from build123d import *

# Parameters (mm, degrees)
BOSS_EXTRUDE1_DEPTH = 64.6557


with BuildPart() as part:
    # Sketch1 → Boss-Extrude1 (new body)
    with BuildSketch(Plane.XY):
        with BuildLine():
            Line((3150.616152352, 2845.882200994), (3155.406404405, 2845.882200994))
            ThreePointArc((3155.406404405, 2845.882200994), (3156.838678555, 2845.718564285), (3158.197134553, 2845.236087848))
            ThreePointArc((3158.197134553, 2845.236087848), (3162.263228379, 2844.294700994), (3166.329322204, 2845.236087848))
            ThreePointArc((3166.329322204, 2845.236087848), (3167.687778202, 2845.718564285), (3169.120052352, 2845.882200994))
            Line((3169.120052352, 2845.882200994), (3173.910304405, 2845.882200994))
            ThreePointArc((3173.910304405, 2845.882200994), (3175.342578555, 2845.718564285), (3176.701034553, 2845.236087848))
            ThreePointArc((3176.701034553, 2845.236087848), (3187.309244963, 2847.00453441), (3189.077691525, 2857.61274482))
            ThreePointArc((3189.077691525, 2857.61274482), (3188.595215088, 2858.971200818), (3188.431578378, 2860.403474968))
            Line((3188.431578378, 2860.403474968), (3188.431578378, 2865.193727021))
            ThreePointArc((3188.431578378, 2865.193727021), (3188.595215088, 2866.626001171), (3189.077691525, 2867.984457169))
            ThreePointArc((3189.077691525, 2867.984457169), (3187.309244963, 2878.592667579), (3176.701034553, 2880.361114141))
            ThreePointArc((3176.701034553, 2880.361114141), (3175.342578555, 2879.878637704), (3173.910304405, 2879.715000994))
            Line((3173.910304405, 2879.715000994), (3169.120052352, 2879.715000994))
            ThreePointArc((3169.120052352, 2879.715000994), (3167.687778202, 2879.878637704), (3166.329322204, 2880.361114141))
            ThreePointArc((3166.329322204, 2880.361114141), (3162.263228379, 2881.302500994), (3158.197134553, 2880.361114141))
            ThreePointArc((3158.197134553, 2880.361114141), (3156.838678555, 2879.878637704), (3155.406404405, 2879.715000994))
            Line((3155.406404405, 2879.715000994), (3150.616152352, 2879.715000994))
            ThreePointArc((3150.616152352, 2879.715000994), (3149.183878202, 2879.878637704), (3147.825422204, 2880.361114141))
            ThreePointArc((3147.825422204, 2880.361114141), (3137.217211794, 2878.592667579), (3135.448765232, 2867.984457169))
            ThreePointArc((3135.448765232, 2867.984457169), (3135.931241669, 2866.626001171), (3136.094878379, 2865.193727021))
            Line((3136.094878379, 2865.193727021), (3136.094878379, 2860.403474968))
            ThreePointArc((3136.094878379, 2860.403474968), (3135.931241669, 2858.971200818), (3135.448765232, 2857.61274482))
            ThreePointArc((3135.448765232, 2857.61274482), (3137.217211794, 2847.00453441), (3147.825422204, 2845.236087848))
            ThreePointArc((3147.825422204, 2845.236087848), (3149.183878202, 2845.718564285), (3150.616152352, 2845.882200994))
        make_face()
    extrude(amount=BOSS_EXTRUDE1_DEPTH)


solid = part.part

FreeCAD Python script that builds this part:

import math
import FreeCAD as App
import Part
import Sketcher
Q = App.Units.Quantity

doc = App.newDocument("Part")
body = doc.addObject("PartDesign::Body", "Body")

# Sketch on XY plane
sketch1 = body.newObject("Sketcher::SketchObject", "Sketch")
sketch1.AttachmentSupport = (doc.getObject("XY_Plane"), [""])
sketch1.MapMode = "FlatFace"
sketch1.addGeometry(Part.LineSegment(App.Vector(3150.6, 2845.9, 0), App.Vector(3155.4, 2845.9, 0)), False)
sketch1.addGeometry(Part.ArcOfCircle(Part.Circle(App.Vector(3155.4, 2839.5, 0), App.Vector(0, 0, 1), 6.3), math.radians(64), math.radians(90)), False)
sketch1.addGeometry(Part.ArcOfCircle(Part.Circle(App.Vector(3162.3, 2853.5, 0), App.Vector(0, 0, 1), 9.3), math.radians(-116), math.radians(-64)), False)
sketch1.addGeometry(Part.ArcOfCircle(Part.Circle(App.Vector(3169.1, 2839.5, 0), App.Vector(0, 0, 1), 6.3), math.radians(90), math.radians(116)), False)
sketch1.addGeometry(Part.LineSegment(App.Vector(3169.1, 2845.9, 0), App.Vector(3173.9, 2845.9, 0)), False)
sketch1.addGeometry(Part.ArcOfCircle(Part.Circle(App.Vector(3173.9, 2839.5, 0), App.Vector(0, 0, 1), 6.3), math.radians(64), math.radians(90)), False)
sketch1.addGeometry(Part.ArcOfCircle(Part.Circle(App.Vector(3180.8, 2853.5, 0), App.Vector(0, 0, 1), 9.3), math.radians(-116), math.radians(26)), False)
sketch1.addGeometry(Part.ArcOfCircle(Part.Circle(App.Vector(3194.8, 2860.4, 0), App.Vector(0, 0, 1), 6.3), math.radians(-180), math.radians(-154)), False)
sketch1.addGeometry(Part.LineSegment(App.Vector(3188.4, 2860.4, 0), App.Vector(3188.4, 2865.2, 0)), False)
sketch1.addGeometry(Part.ArcOfCircle(Part.Circle(App.Vector(3194.8, 2865.2, 0), App.Vector(0, 0, 1), 6.3), math.radians(154), math.radians(180)), False)
sketch1.addGeometry(Part.ArcOfCircle(Part.Circle(App.Vector(3180.8, 2872.1, 0), App.Vector(0, 0, 1), 9.3), math.radians(-26), math.radians(116)), False)
sketch1.addGeometry(Part.ArcOfCircle(Part.Circle(App.Vector(3173.9, 2886.1, 0), App.Vector(0, 0, 1), 6.3), math.radians(-90), math.radians(-64)), False)
sketch1.addGeometry(Part.LineSegment(App.Vector(3173.9, 2879.7, 0), App.Vector(3169.1, 2879.7, 0)), False)
sketch1.addGeometry(Part.ArcOfCircle(Part.Circle(App.Vector(3169.1, 2886.1, 0), App.Vector(0, 0, 1), 6.3), math.radians(-116), math.radians(-90)), False)
sketch1.addGeometry(Part.ArcOfCircle(Part.Circle(App.Vector(3162.3, 2872.1, 0), App.Vector(0, 0, 1), 9.3), math.radians(64), math.radians(116)), False)
sketch1.addGeometry(Part.ArcOfCircle(Part.Circle(App.Vector(3155.4, 2886.1, 0), App.Vector(0, 0, 1), 6.3), math.radians(-90), math.radians(-64)), False)
sketch1.addGeometry(Part.LineSegment(App.Vector(3155.4, 2879.7, 0), App.Vector(3150.6, 2879.7, 0)), False)
sketch1.addGeometry(Part.ArcOfCircle(Part.Circle(App.Vector(3150.6, 2886.1, 0), App.Vector(0, 0, 1), 6.3), math.radians(-116), math.radians(-90)), False)
sketch1.addGeometry(Part.ArcOfCircle(Part.Circle(App.Vector(3143.8, 2872.1, 0), App.Vector(0, 0, 1), 9.3), math.radians(64), math.radians(206)), False)
sketch1.addGeometry(Part.ArcOfCircle(Part.Circle(App.Vector(3129.7, 2865.2, 0), App.Vector(0, 0, 1), 6.3), math.radians(0), math.radians(26)), False)
sketch1.addGeometry(Part.LineSegment(App.Vector(3136.1, 2865.2, 0), App.Vector(3136.1, 2860.4, 0)), False)
sketch1.addGeometry(Part.ArcOfCircle(Part.Circle(App.Vector(3129.7, 2860.4, 0), App.Vector(0, 0, 1), 6.3), math.radians(-26), math.radians(0)), False)
sketch1.addGeometry(Part.ArcOfCircle(Part.Circle(App.Vector(3143.8, 2853.5, 0), App.Vector(0, 0, 1), 9.3), math.radians(154), math.radians(296)), False)
sketch1.addGeometry(Part.ArcOfCircle(Part.Circle(App.Vector(3150.6, 2839.5, 0), App.Vector(0, 0, 1), 6.3), math.radians(90), math.radians(116)), False)
sketch1.addConstraint(Sketcher.Constraint("Tangent", 0, 2, 1, 2))
sketch1.addConstraint(Sketcher.Constraint("Tangent", 1, 1, 2, 1))
sketch1.addConstraint(Sketcher.Constraint("Tangent", 2, 2, 3, 2))
sketch1.addConstraint(Sketcher.Constraint("Tangent", 3, 1, 4, 1))
sketch1.addConstraint(Sketcher.Constraint("Tangent", 4, 2, 5, 2))
sketch1.addConstraint(Sketcher.Constraint("Tangent", 5, 1, 6, 1))
sketch1.addConstraint(Sketcher.Constraint("Tangent", 6, 2, 7, 2))
sketch1.addConstraint(Sketcher.Constraint("Tangent", 7, 1, 8, 1))
sketch1.addConstraint(Sketcher.Constraint("Tangent", 8, 2, 9, 2))
sketch1.addConstraint(Sketcher.Constraint("Tangent", 9, 1, 10, 1))
sketch1.addConstraint(Sketcher.Constraint("Tangent", 10, 2, 11, 2))
sketch1.addConstraint(Sketcher.Constraint("Tangent", 11, 1, 12, 1))
sketch1.addConstraint(Sketcher.Constraint("Tangent", 12, 2, 13, 2))
sketch1.addConstraint(Sketcher.Constraint("Tangent", 13, 1, 14, 1))
sketch1.addConstraint(Sketcher.Constraint("Tangent", 14, 2, 15, 2))
sketch1.addConstraint(Sketcher.Constraint("Tangent", 15, 1, 16, 1))
sketch1.addConstraint(Sketcher.Constraint("Tangent", 16, 2, 17, 2))
sketch1.addConstraint(Sketcher.Constraint("Tangent", 17, 1, 18, 1))
sketch1.addConstraint(Sketcher.Constraint("Tangent", 18, 2, 19, 2))
sketch1.addConstraint(Sketcher.Constraint("Tangent", 19, 1, 20, 1))
sketch1.addConstraint(Sketcher.Constraint("Tangent", 20, 2, 21, 2))
sketch1.addConstraint(Sketcher.Constraint("Tangent", 21, 1, 22, 1))
sketch1.addConstraint(Sketcher.Constraint("Tangent", 22, 2, 23, 2))
sketch1.addConstraint(Sketcher.Constraint("Tangent", 23, 1, 0, 1))
sketch1.addConstraint(Sketcher.Constraint("Horizontal", 0))
sketch1.addConstraint(Sketcher.Constraint("Horizontal", 4))
sketch1.addConstraint(Sketcher.Constraint("Vertical", 8))
sketch1.addConstraint(Sketcher.Constraint("Horizontal", 12))
sketch1.addConstraint(Sketcher.Constraint("Horizontal", 16))
sketch1.addConstraint(Sketcher.Constraint("Vertical", 20))
sketch1.addConstraint(Sketcher.Constraint("Equal", 1, 3))
sketch1.addConstraint(Sketcher.Constraint("Equal", 3, 5))
sketch1.addConstraint(Sketcher.Constraint("Equal", 2, 6))
sketch1.addConstraint(Sketcher.Constraint("Equal", 5, 7))
sketch1.addConstraint(Sketcher.Constraint("Equal", 7, 9))
sketch1.addConstraint(Sketcher.Constraint("Equal", 6, 10))
sketch1.addConstraint(Sketcher.Constraint("Equal", 9, 11))
sketch1.addConstraint(Sketcher.Constraint("Equal", 11, 13))
sketch1.addConstraint(Sketcher.Constraint("Equal", 10, 14))
sketch1.addConstraint(Sketcher.Constraint("Equal", 13, 15))
sketch1.addConstraint(Sketcher.Constraint("Equal", 15, 17))
sketch1.addConstraint(Sketcher.Constraint("Equal", 14, 18))
sketch1.addConstraint(Sketcher.Constraint("Equal", 17, 19))
sketch1.addConstraint(Sketcher.Constraint("Equal", 19, 21))
sketch1.addConstraint(Sketcher.Constraint("Equal", 18, 22))
sketch1.addConstraint(Sketcher.Constraint("Equal", 21, 23))
sketch1.addConstraint(Sketcher.Constraint("Horizontal", 1, 3, 3, 3))
sketch1.addConstraint(Sketcher.Constraint("Horizontal", 2, 3, 6, 3))
sketch1.addConstraint(Sketcher.Constraint("Horizontal", 10, 3, 14, 3))
sketch1.addConstraint(Sketcher.Constraint("Horizontal", 13, 3, 15, 3))
sketch1.addConstraint(Sketcher.Constraint("Horizontal", 14, 3, 18, 3))
sketch1.addConstraint(Sketcher.Constraint("Horizontal", 9, 3, 19, 3))
sketch1.addConstraint(Sketcher.Constraint("Horizontal", 7, 3, 21, 3))
sketch1.addConstraint(Sketcher.Constraint("Horizontal", 6, 3, 22, 3))
sketch1.addConstraint(Sketcher.Constraint("Vertical", 6, 3, 10, 3))
sketch1.addConstraint(Sketcher.Constraint("Vertical", 5, 3, 11, 3))
sketch1.addConstraint(Sketcher.Constraint("Vertical", 3, 3, 13, 3))
sketch1.addConstraint(Sketcher.Constraint("Equal", 0, 4))
sketch1.addConstraint(Sketcher.Constraint("Equal", 16, 8))
sketch1.addConstraint(Sketcher.Constraint("Radius", 1, Q("0.25 in")))
sketch1.addConstraint(Sketcher.Constraint("Radius", 2, 9.25195))
sketch1.addConstraint(Sketcher.Constraint("DistanceX", 1, 3, 5, 3, Q("0.7285 in")))
sketch1.addConstraint(Sketcher.Constraint("DistanceY", 6, 3, 10, 3, Q("0.7285 in")))
sketch1.addConstraint(Sketcher.Constraint("DistanceY", -1, 1, 1, 3, 2839.532201))
sketch1.addConstraint(Sketcher.Constraint("DistanceY", -1, 1, 11, 3, 2886.065001))
sketch1.addConstraint(Sketcher.Constraint("DistanceX", -1, 1, 2, 3, 3162.263228))
pad1 = body.newObject("PartDesign::Pad", "Pad")
pad1.Profile = sketch1
pad1.Length = Q("2.5455 in")

doc.recompute()
